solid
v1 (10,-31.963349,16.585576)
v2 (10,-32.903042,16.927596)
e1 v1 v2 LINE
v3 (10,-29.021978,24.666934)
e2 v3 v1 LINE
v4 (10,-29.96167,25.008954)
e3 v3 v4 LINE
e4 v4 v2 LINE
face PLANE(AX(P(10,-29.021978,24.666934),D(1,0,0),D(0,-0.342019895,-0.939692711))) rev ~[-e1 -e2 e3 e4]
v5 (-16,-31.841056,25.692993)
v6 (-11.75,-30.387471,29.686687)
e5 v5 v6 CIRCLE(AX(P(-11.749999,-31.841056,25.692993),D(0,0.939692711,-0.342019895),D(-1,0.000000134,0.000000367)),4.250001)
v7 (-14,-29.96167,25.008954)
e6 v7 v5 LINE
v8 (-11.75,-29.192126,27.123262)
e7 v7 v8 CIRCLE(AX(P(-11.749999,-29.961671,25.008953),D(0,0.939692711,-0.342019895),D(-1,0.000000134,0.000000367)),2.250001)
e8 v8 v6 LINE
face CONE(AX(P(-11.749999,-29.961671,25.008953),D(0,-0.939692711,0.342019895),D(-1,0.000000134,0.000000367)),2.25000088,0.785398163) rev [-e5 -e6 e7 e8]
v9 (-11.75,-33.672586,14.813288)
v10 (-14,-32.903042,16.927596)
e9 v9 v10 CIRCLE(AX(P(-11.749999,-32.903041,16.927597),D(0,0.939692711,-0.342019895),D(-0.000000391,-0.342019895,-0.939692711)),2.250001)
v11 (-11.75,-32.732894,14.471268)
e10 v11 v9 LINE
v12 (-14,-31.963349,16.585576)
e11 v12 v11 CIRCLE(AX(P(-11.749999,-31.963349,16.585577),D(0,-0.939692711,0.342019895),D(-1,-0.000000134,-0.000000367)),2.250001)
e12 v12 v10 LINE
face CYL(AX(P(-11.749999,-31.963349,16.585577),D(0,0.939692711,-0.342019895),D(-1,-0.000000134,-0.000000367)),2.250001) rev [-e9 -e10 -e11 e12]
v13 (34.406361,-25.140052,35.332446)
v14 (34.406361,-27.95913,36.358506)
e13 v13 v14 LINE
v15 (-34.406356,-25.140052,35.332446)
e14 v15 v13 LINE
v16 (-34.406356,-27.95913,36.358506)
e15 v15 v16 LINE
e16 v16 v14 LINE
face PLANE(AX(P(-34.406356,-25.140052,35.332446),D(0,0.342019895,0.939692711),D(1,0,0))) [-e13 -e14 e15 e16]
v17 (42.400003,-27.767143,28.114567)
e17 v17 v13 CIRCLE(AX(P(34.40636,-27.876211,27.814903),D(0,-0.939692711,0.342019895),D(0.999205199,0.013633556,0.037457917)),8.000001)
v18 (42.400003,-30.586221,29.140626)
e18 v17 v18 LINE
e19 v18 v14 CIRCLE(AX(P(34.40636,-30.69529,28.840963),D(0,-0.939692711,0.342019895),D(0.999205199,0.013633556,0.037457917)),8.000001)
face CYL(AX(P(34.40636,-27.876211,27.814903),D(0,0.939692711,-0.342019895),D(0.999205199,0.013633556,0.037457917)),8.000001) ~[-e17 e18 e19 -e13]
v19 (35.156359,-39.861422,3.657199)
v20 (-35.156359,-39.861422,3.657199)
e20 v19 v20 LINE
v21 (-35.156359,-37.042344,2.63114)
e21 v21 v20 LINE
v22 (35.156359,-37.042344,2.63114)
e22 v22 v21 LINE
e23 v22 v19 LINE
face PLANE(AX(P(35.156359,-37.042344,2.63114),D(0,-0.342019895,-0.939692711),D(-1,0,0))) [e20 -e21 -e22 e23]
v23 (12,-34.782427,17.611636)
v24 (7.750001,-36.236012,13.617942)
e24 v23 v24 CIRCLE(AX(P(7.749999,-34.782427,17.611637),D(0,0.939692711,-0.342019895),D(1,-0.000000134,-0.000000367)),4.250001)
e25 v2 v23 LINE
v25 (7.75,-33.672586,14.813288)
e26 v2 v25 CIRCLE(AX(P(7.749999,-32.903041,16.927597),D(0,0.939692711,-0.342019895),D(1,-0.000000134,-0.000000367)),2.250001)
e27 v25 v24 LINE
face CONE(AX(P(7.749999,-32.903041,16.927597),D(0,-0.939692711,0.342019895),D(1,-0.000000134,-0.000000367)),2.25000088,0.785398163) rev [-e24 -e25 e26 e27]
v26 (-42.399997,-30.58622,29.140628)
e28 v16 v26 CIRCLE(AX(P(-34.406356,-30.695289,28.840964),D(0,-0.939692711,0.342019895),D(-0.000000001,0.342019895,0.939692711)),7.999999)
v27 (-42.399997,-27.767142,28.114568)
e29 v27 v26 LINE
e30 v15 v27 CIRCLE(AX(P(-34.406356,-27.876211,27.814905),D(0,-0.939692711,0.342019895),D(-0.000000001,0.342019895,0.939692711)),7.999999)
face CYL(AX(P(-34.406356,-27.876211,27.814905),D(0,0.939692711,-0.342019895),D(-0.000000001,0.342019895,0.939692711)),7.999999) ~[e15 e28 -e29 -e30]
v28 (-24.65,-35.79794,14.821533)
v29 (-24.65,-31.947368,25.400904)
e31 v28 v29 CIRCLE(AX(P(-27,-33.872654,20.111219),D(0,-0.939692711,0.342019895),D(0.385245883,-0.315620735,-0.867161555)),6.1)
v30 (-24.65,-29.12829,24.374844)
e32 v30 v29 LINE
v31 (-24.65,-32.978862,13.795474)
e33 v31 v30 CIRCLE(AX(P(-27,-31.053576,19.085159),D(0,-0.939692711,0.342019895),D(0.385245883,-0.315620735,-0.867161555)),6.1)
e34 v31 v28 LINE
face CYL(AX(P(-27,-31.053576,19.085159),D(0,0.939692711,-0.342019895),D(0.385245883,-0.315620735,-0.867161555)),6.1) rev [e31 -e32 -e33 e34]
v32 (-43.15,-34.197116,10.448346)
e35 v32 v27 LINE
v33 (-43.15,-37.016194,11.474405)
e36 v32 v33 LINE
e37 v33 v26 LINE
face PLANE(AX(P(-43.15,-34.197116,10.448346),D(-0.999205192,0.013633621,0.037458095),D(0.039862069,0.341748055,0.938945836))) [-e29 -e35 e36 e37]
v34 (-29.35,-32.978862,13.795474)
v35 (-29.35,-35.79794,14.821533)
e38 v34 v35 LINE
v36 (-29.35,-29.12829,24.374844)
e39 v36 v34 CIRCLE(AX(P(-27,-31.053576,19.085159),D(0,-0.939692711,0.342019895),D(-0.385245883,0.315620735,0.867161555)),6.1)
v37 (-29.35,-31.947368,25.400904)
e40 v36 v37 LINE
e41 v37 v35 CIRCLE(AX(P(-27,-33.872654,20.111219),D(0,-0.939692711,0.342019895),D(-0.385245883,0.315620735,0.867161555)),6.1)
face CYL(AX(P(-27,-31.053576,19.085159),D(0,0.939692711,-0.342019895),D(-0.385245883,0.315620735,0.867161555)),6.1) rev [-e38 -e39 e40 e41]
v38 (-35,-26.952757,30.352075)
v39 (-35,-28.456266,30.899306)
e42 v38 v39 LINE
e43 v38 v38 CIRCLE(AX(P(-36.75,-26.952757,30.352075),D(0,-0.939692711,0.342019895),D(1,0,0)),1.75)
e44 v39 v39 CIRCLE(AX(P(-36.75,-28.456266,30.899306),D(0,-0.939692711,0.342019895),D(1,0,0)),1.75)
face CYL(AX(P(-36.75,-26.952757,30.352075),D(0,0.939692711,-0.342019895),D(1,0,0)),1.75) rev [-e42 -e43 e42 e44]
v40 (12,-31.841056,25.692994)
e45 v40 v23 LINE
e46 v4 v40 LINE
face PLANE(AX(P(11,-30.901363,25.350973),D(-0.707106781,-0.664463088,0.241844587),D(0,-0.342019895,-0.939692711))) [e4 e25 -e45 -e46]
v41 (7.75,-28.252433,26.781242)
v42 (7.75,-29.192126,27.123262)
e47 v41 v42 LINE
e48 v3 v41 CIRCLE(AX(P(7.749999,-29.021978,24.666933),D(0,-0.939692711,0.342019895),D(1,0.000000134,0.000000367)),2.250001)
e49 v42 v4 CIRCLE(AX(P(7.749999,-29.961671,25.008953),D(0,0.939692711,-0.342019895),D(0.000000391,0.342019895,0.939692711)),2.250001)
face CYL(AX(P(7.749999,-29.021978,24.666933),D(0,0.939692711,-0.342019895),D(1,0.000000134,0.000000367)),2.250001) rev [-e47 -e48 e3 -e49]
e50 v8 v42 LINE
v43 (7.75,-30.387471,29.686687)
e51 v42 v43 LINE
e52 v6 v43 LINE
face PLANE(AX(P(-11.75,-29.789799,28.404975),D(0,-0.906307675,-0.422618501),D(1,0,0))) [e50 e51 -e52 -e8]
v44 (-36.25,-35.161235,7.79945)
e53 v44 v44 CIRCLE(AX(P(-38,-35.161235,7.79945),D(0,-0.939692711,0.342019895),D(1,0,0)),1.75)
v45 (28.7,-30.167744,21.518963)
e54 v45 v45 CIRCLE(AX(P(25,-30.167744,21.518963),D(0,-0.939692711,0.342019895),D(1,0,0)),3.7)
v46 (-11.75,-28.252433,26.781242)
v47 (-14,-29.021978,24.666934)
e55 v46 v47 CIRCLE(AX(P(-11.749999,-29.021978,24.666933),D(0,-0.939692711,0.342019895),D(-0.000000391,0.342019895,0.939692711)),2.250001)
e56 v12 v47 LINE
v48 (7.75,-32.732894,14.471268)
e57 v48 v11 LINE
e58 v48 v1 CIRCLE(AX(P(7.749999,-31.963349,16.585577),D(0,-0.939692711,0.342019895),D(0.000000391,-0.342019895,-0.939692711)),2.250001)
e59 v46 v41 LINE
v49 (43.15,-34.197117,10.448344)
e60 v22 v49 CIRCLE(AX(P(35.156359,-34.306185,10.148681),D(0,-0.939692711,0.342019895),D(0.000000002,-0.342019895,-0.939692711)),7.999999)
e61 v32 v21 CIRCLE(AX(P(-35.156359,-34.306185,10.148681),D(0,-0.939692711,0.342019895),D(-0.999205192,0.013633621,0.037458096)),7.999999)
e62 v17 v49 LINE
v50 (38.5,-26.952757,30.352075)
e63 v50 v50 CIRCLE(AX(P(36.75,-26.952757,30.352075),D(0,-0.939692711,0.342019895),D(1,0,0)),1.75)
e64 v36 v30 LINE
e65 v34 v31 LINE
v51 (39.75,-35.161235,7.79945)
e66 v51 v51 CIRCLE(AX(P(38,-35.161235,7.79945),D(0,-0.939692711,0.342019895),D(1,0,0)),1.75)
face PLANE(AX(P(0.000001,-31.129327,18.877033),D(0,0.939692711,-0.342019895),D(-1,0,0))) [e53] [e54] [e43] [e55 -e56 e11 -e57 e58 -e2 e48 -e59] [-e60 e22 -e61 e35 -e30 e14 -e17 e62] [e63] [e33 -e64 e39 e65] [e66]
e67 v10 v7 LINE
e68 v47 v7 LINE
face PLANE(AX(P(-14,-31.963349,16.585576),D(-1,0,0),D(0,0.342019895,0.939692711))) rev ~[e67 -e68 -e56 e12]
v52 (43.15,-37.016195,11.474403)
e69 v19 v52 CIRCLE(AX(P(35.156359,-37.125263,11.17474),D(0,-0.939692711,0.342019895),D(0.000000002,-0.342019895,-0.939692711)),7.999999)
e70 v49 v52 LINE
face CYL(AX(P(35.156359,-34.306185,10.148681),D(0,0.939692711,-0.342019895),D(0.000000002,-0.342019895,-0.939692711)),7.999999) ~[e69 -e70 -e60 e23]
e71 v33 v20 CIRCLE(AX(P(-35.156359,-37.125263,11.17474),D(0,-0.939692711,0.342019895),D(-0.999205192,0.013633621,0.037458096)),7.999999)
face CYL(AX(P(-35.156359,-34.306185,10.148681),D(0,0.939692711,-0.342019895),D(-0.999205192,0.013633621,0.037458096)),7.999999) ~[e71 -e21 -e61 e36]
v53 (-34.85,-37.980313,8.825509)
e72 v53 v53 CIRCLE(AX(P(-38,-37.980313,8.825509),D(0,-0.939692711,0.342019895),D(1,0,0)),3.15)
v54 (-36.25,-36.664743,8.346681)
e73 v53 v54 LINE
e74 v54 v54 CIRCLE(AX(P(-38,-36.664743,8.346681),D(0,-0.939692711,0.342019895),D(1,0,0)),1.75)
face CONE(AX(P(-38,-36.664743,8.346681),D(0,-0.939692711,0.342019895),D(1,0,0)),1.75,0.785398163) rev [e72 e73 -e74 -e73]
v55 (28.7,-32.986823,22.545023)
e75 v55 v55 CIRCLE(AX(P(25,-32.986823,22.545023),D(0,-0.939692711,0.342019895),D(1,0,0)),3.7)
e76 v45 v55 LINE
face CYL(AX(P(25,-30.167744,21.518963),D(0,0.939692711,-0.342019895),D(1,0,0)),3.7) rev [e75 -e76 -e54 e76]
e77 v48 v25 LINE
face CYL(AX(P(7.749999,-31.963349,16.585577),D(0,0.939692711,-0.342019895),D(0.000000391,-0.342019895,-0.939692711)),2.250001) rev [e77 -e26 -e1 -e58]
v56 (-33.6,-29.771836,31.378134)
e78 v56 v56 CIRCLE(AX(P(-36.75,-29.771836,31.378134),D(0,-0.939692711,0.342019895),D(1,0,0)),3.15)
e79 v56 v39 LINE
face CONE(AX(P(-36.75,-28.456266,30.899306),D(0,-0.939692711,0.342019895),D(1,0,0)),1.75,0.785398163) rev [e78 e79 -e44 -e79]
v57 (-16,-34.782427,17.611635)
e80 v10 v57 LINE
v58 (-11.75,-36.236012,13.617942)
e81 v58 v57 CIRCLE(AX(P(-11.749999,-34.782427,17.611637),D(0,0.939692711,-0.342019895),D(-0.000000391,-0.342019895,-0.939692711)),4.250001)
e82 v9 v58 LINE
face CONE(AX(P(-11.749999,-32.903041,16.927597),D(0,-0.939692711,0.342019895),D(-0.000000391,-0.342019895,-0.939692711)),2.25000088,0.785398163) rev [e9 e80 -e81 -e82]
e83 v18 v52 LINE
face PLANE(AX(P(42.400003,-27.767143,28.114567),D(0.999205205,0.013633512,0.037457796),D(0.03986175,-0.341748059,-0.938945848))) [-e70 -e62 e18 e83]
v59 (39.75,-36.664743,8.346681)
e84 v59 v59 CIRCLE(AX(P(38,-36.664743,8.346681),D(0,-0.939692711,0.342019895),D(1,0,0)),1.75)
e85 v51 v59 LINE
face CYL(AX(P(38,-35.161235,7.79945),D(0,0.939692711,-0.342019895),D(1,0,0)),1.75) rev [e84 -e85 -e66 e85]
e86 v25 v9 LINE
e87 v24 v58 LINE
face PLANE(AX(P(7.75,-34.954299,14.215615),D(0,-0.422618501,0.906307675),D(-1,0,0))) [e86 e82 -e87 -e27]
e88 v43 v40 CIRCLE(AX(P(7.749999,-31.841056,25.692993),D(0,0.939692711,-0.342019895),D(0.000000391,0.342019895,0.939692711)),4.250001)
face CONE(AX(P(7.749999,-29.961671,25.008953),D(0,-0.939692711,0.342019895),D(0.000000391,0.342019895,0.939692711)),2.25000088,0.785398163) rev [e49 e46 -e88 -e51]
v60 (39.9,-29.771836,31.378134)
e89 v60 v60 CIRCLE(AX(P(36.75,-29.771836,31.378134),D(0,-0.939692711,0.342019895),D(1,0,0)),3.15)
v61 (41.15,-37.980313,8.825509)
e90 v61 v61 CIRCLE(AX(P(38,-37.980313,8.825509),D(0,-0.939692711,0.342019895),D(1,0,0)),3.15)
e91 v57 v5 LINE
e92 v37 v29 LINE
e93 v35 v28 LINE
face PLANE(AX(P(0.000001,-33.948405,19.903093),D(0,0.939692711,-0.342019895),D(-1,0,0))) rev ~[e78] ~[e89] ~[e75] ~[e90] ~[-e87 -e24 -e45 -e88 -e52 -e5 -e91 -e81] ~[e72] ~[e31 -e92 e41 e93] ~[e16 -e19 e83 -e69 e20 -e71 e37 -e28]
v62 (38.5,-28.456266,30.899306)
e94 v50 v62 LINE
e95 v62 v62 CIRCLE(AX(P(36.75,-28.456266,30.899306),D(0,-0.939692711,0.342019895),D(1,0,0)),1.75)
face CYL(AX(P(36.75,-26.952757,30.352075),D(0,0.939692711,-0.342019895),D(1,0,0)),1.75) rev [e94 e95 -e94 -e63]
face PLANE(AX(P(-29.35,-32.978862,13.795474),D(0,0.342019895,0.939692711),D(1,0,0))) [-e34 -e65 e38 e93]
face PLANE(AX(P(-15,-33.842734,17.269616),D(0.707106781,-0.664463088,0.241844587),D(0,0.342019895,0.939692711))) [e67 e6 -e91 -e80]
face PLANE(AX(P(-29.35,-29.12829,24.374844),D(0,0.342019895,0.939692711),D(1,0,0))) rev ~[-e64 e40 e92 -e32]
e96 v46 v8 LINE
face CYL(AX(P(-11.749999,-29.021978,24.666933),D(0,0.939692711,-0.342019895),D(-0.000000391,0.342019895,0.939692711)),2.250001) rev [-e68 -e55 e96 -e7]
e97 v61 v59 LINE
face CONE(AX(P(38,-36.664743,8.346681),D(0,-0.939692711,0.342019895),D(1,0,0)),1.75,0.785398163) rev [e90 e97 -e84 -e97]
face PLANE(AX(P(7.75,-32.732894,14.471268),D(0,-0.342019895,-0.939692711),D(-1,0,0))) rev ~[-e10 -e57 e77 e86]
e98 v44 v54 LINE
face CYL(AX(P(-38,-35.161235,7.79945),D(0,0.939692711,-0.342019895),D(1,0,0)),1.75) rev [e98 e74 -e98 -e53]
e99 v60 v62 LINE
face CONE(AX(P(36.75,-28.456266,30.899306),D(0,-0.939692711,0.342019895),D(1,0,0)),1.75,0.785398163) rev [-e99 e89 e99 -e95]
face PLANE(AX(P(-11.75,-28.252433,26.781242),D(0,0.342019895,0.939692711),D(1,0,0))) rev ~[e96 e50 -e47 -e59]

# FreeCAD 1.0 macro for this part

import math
import FreeCAD as App
import Part
import Sketcher

V = App.Vector
Q = App.Units.Quantity


def edges_at(feature, points):
    """Names of the edges that pass closest to the given points."""
    edges = feature.Shape.Edges
    near = lambda p: min(range(len(edges)), key=lambda i: edges[i].distToShape(Part.Vertex(*p))[0])
    return sorted({f"Edge{near(p) + 1}" for p in points})

doc = App.newDocument("Part")
body = doc.addObject("PartDesign::Body", "Body")

sketch1 = doc.addObject("Sketcher::SketchObject", "Sketch")
body.addObject(sketch1)
sketch1.Placement = App.Placement(V(0, -38, 0), App.Rotation(V(1, 0, 0), V(0, 0.342019895, 0.939692711), V(0, -0.939692711, 0.342019895), "ZXY"))
sketch1.addGeometry([
    Part.LineSegment(V(34.406361, 37.6, 0), V(-34.406356, 37.6, 0)),
    Part.ArcOfCircle(Part.Circle(V(-34.406356, 29.600001, 0), V(0, 0, 1), 7.999999), math.radians(90), math.radians(177.715474)),
    Part.LineSegment(V(-42.399997, 29.918896, 0), V(-43.15, 11.118896, 0)),
    Part.ArcOfCircle(Part.Circle(V(-35.156359, 10.799999, 0), V(0, 0, 1), 7.999999), math.radians(177.715466), math.radians(270)),
    Part.LineSegment(V(-35.156359, 2.8, 0), V(35.156359, 2.8, 0)),
    Part.ArcOfCircle(Part.Circle(V(35.156359, 10.799999, 0), V(0, 0, 1), 7.999999), math.radians(-90), math.radians(2.28452)),
    Part.LineSegment(V(43.15, 11.118894, 0), V(42.400003, 29.918894, 0)),
    Part.ArcOfCircle(Part.Circle(V(34.40636, 29.599999, 0), V(0, 0, 1), 8.000001), math.radians(2.284523), math.radians(89.999995)),
    Part.Circle(V(38, 8.3, 0), V(0, 0, 1), 1.75),
    Part.Circle(V(-38, 8.3, 0), V(0, 0, 1), 1.75),
    Part.Circle(V(25, 22.9, 0), V(0, 0, 1), 3.7),
    Part.Circle(V(36.75, 32.3, 0), V(0, 0, 1), 1.75),
    Part.LineSegment(V(-11.75, 28.5, 0), V(7.75, 28.5, 0)),
    Part.ArcOfCircle(Part.Circle(V(7.749999, 26.249999, 0), V(0, 0, 1), 2.250001), math.radians(0.000022), math.radians(89.999978)),
    Part.LineSegment(V(10, 26.25, 0), V(10, 17.65, 0)),
    Part.ArcOfCircle(Part.Circle(V(7.749999, 17.650001, 0), V(0, 0, 1), 2.250001), math.radians(-89.999978), math.radians(-0.000022)),
    Part.LineSegment(V(7.75, 15.4, 0), V(-11.75, 15.4, 0)),
    Part.ArcOfCircle(Part.Circle(V(-11.749999, 17.650001, 0), V(0, 0, 1), 2.250001), math.radians(-179.999978), math.radians(-90.000022)),
    Part.LineSegment(V(-14, 17.65, 0), V(-14, 26.25, 0)),
    Part.ArcOfCircle(Part.Circle(V(-11.749999, 26.249999, 0), V(0, 0, 1), 2.250001), math.radians(90.000022), math.radians(179.999978)),
    Part.LineSegment(V(-29.35, 25.939165, 0), V(-24.65, 25.939165, 0)),
    Part.ArcOfCircle(Part.Circle(V(-27, 20.31, 0), V(0, 0, 1), 6.1), math.radians(-67.340994), math.radians(67.340994)),
    Part.LineSegment(V(-24.65, 14.680835, 0), V(-29.35, 14.680835, 0)),
    Part.ArcOfCircle(Part.Circle(V(-27, 20.31, 0), V(0, 0, 1), 6.1), math.radians(112.659006), math.radians(247.340994)),
    Part.Circle(V(-36.75, 32.3, 0), V(0, 0, 1), 1.75),
], False)
sketch1.addConstraint([
    Sketcher.Constraint("Tangent", 0, 2, 1, 1),
    Sketcher.Constraint("Tangent", 1, 2, 2, 1),
    Sketcher.Constraint("Tangent", 2, 2, 3, 1),
    Sketcher.Constraint("Tangent", 3, 2, 4, 1),
    Sketcher.Constraint("Tangent", 4, 2, 5, 1),
    Sketcher.Constraint("Tangent", 5, 2, 6, 1),
    Sketcher.Constraint("Tangent", 6, 2, 7, 1),
    Sketcher.Constraint("Tangent", 7, 2, 0, 1),
    Sketcher.Constraint("Tangent", 12, 2, 13, 2),
    Sketcher.Constraint("Tangent", 13, 1, 14, 1),
    Sketcher.Constraint("Tangent", 14, 2, 15, 2),
    Sketcher.Constraint("Tangent", 15, 1, 16, 1),
    Sketcher.Constraint("Tangent", 16, 2, 17, 2),
    Sketcher.Constraint("Tangent", 17, 1, 18, 1),
    Sketcher.Constraint("Tangent", 18, 2, 19, 2),
    Sketcher.Constraint("Tangent", 19, 1, 12, 1),
    Sketcher.Constraint("Coincident", 20, 2, 21, 2),
    Sketcher.Constraint("Coincident", 21, 1, 22, 1),
    Sketcher.Constraint("Coincident", 22, 2, 23, 2),
    Sketcher.Constraint("Coincident", 23, 1, 20, 1),
    Sketcher.Constraint("Horizontal", 0),
    Sketcher.Constraint("Horizontal", 4),
    Sketcher.Constraint("Horizontal", 12),
    Sketcher.Constraint("Vertical", 14),
    Sketcher.Constraint("Horizontal", 16),
    Sketcher.Constraint("Vertical", 18),
    Sketcher.Constraint("Horizontal", 20),
    Sketcher.Constraint("Horizontal", 22),
    Sketcher.Constraint("Coincident", 23, 3, 21, 3),
    Sketcher.Constraint("Equal", 1, 3),
    Sketcher.Constraint("Equal", 3, 5),
    Sketcher.Constraint("Equal", 5, 7),
    Sketcher.Constraint("Equal", 8, 9),
    Sketcher.Constraint("Equal", 9, 11),
    Sketcher.Constraint("Equal", 13, 15),
    Sketcher.Constraint("Equal", 15, 17),
    Sketcher.Constraint("Equal", 17, 19),
    Sketcher.Constraint("Equal", 21, 23),
    Sketcher.Constraint("Equal", 11, 24),
    Sketcher.Constraint("Symmetric", 8, 3, 9, 3, -2),
    Sketcher.Constraint("Symmetric", 11, 3, 24, 3, -2),
    Sketcher.Constraint("Symmetric", 2, 2, 5, 2, -2),
    Sketcher.Constraint("Vertical", 20, 2, 21, 1),
    Sketcher.Constraint("Radius", 1, Q("7.999999 mm")),
    Sketcher.Constraint("Diameter", 8, Q("3.5 mm")),
    Sketcher.Constraint("Diameter", 10, Q("7.4 mm")),
    Sketcher.Constraint("Radius", 21, Q("6.1 mm")),
    Sketcher.Constraint("Radius", 13, Q("2.250001 mm")),
    Sketcher.Constraint("DistanceX", 12, 1, 12, 2, Q("19.5 mm")),
    Sketcher.Constraint("DistanceX", 20, 1, 20, 2, Q("4.7 mm")),
    Sketcher.Constraint("DistanceY", 14, 2, 14, 1, Q("8.6 mm")),
    Sketcher.Constraint("DistanceX", -1, 1, 8, 3, Q("38 mm")),
    Sketcher.Constraint("DistanceX", -1, 1, 10, 3, Q("25 mm")),
    Sketcher.Constraint("DistanceX", 21, 3, -1, 1, Q("27 mm")),
    Sketcher.Constraint("DistanceX", -1, 1, 13, 1, Q("10 mm")),
    Sketcher.Constraint("DistanceY", 8, 3, 11, 3, Q("24 mm")),
    Sketcher.Constraint("DistanceX", 13, 3, 11, 3, Q("29.000001 mm")),
    Sketcher.Constraint("DistanceY", -1, 1, 1, 3, Q("29.600001 mm")),
    Sketcher.Constraint("DistanceY", -1, 1, 3, 3, Q("10.799999 mm")),
    Sketcher.Constraint("DistanceY", -1, 1, 8, 3, Q("8.3 mm")),
    Sketcher.Constraint("DistanceY", -1, 1, 10, 3, Q("22.9 mm")),
    Sketcher.Constraint("DistanceY", -1, 1, 12, 2, Q("28.5 mm")),
    Sketcher.Constraint("DistanceY", -1, 1, 21, 3, Q("20.31 mm")),
    Sketcher.Constraint("DistanceX", 2, 2, -1, 1, Q("43.15 mm")),
    Sketcher.Constraint("DistanceX", 7, 3, 5, 3, Q("0.749999 mm")),
])
pad1 = doc.addObject("PartDesign::Pad", "Pad")
body.addObject(pad1)
pad1.Profile = sketch1
pad1.Length = 3
doc.recompute()

chamfer = doc.addObject("PartDesign::Chamfer", "Chamfer")
body.addObject(chamfer)
chamfer.Base = (pad1, edges_at(pad1, [(-2, -31.072, 27.807)]))
chamfer.Size = 2
doc.recompute()

chamfer2 = doc.addObject("PartDesign::Chamfer", "Chamfer001")
body.addObject(chamfer2)
chamfer2.Base = (chamfer, edges_at(chamfer, [
    (-38.5, -29.772, 31.378),
    (-39.75, -37.98, 8.826),
    (35, -29.772, 31.378),
    (36.25, -37.98, 8.826),
]))
chamfer2.Size = 1.4

doc.recompute()
